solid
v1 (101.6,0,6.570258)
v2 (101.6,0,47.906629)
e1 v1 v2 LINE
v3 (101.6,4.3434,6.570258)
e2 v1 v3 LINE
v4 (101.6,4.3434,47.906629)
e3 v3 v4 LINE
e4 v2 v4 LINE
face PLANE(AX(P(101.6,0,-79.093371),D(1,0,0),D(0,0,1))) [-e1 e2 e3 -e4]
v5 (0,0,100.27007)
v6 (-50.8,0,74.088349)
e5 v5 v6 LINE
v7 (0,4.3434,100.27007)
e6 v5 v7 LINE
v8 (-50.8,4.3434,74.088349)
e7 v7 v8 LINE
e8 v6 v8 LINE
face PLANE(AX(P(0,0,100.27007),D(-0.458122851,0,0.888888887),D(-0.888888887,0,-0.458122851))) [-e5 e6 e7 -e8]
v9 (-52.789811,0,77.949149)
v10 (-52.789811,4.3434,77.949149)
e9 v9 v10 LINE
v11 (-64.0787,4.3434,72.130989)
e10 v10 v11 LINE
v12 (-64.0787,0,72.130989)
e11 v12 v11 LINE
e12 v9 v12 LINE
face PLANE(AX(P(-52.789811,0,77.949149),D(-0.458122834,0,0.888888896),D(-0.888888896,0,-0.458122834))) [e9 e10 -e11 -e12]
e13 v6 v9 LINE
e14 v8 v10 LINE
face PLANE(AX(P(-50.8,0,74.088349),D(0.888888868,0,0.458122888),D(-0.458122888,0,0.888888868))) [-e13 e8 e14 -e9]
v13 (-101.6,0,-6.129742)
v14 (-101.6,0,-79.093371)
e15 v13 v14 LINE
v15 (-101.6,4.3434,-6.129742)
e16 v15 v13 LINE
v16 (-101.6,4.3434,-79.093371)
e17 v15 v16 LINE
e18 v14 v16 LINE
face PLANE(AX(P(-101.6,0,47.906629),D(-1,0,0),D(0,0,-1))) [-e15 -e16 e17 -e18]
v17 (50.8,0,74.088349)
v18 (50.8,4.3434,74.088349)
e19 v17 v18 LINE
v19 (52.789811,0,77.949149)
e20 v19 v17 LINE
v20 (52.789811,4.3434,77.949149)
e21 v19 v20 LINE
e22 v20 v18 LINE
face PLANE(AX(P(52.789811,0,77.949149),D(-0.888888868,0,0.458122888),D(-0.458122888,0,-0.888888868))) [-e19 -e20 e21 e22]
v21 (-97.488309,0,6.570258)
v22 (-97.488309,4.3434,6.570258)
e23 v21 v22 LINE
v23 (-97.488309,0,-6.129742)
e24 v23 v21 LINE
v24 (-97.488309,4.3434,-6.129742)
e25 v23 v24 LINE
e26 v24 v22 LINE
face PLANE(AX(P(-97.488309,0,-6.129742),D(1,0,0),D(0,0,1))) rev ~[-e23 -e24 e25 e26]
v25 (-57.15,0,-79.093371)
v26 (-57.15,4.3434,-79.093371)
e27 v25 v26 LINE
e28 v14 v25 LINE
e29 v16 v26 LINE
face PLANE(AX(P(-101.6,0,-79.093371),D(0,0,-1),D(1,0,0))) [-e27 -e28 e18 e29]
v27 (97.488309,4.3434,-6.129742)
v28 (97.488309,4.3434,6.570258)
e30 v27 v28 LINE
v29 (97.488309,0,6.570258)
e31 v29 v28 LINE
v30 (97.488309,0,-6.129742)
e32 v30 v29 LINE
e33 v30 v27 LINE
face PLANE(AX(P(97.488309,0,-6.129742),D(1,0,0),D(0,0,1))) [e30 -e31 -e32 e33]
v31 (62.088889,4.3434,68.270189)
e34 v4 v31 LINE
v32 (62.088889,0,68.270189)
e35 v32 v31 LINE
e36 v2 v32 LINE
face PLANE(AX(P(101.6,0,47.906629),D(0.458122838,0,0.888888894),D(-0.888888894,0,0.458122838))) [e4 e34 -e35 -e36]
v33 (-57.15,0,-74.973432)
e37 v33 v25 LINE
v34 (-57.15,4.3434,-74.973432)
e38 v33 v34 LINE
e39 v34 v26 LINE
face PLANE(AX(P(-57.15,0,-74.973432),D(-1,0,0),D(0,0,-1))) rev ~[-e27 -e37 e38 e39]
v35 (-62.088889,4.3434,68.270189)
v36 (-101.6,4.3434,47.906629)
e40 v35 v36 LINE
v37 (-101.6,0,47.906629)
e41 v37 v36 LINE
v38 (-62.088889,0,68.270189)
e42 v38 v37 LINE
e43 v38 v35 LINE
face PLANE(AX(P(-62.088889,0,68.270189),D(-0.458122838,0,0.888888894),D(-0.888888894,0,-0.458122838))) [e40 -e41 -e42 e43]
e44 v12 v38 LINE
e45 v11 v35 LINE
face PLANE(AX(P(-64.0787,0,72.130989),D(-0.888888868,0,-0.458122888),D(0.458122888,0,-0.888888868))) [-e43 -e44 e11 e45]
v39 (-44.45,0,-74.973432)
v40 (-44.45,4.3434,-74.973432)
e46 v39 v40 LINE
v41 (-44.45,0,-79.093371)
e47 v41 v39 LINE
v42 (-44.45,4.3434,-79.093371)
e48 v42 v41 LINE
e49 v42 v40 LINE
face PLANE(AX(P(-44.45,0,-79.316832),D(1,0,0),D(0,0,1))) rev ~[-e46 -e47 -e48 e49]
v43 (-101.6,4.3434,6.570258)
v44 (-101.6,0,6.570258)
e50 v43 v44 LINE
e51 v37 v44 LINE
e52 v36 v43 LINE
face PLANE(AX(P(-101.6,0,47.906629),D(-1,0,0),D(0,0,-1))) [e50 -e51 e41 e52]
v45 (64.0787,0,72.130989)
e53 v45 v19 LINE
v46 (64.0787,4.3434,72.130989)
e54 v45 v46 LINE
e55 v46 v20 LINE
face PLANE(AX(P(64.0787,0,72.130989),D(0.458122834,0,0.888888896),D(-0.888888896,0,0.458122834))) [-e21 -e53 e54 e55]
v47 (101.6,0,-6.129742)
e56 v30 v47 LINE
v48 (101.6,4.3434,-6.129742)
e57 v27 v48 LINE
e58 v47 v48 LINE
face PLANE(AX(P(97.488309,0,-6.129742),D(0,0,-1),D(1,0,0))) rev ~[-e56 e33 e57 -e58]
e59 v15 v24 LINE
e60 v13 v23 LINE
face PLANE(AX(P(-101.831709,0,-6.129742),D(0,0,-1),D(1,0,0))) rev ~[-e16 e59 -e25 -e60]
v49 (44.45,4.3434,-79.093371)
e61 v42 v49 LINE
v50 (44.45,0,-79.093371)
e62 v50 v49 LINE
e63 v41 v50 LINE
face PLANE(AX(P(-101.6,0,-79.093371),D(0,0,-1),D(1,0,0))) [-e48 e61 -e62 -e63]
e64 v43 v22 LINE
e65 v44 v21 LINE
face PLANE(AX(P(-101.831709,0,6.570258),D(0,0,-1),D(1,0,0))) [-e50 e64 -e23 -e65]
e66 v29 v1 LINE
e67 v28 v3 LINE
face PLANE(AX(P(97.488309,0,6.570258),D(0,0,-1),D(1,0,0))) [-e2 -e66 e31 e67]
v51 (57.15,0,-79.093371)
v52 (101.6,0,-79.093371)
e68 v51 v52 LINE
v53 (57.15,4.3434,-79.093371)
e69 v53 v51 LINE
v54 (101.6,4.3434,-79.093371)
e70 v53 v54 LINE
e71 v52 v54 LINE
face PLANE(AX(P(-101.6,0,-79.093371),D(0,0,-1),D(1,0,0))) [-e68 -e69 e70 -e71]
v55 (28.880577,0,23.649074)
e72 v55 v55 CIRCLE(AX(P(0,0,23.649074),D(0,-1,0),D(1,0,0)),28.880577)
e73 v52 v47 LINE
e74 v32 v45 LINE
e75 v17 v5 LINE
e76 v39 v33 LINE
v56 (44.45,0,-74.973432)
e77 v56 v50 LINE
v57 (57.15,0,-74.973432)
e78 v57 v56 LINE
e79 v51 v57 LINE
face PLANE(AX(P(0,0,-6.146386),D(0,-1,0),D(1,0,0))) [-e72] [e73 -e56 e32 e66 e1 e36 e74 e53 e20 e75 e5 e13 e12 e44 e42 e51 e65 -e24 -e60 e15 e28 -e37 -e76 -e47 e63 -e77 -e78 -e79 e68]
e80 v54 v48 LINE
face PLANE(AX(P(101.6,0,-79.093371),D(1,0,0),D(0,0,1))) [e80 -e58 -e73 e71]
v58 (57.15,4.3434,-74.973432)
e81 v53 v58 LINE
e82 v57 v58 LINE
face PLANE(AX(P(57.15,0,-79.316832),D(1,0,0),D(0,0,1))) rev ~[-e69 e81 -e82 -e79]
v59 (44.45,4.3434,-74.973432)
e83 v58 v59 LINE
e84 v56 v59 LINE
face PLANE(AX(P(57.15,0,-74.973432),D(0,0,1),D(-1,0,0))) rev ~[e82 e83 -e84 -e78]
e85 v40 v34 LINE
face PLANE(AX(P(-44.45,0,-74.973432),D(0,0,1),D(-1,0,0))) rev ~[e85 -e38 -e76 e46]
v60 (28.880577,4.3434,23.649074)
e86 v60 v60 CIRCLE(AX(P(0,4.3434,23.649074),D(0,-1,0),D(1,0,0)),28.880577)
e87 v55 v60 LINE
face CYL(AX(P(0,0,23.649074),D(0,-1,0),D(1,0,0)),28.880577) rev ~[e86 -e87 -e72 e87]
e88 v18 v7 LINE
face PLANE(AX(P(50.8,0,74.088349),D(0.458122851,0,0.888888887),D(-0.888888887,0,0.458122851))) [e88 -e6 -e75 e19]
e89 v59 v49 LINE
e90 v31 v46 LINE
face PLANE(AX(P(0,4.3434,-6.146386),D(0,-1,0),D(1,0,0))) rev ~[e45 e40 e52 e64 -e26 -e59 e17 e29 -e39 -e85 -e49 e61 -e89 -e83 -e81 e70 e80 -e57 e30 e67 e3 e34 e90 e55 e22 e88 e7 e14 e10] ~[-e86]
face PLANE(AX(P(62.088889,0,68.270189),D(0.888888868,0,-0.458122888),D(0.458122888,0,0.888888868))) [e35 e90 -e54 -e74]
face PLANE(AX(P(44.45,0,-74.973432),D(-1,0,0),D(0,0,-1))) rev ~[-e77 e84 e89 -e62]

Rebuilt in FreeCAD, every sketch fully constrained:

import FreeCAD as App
import Part
import Sketcher
Q = App.Units.Quantity


def add_polygon(sketch, points):
    """Adds a closed chain of lines whose ends are joined by coincident constraints."""
    first, n = sketch.GeometryCount, len(points)
    for a, b in zip(points, points[1:] + points[:1]):
        sketch.addGeometry(Part.LineSegment(App.Vector(*a, 0), App.Vector(*b, 0)), False)
    for i in range(n):
        sketch.addConstraint(Sketcher.Constraint("Coincident", first + i, 2, first + (i + 1) % n, 1))

doc = App.newDocument("Part")
body = doc.addObject("PartDesign::Body", "Body")

sketch1 = body.newObject("Sketcher::SketchObject", "Sketch")
sketch1.AttachmentSupport = (doc.getObject("XZ_Plane"), [""])
sketch1.MapMode = "FlatFace"
add_polygon(sketch1, [(50.8, 74.1), (0, 100.3), (-50.8, 74.1), (-52.8, 77.9), (-64.1, 72.1), (-62.1, 68.3), (-101.6, 47.9), (-101.6, -79.1), (101.6, -79.1), (101.6, 47.9), (62.1, 68.3), (64.1, 72.1), (52.8, 77.9)])
sketch1.addConstraint(Sketcher.Constraint("Vertical", 6))
sketch1.addConstraint(Sketcher.Constraint("Horizontal", 7))
sketch1.addConstraint(Sketcher.Constraint("Vertical", 8))
sketch1.addConstraint(Sketcher.Constraint("Symmetric", 5, 2, 8, 2, -2))
sketch1.addConstraint(Sketcher.Constraint("Symmetric", 4, 2, 9, 2, -2))
sketch1.addConstraint(Sketcher.Constraint("Symmetric", 3, 2, 10, 2, -2))
sketch1.addConstraint(Sketcher.Constraint("Symmetric", 2, 2, 11, 2, -2))
sketch1.addConstraint(Sketcher.Constraint("Symmetric", 1, 2, 12, 2, -2))
sketch1.addConstraint(Sketcher.Constraint("PointOnObject", 0, 2, -2))
sketch1.addConstraint(Sketcher.Constraint("Perpendicular", 1, 2))
sketch1.addConstraint(Sketcher.Constraint("Perpendicular", 2, 3))
sketch1.addConstraint(Sketcher.Constraint("Perpendicular", 3, 4))
sketch1.addConstraint(Sketcher.Constraint("Perpendicular", 4, 5))
sketch1.addConstraint(Sketcher.Constraint("Equal", 2, 4))
sketch1.addConstraint(Sketcher.Constraint("DistanceX", 7, 1, 7, 2, Q("8 in")))
sketch1.addConstraint(Sketcher.Constraint("DistanceY", 6, 2, 6, 1, Q("5 in")))
sketch1.addConstraint(Sketcher.Constraint("DistanceX", 1, 2, -1, 1, Q("2 in")))
sketch1.addConstraint(Sketcher.Constraint("Distance", 3, Q("0.5 in")))
sketch1.addConstraint(Sketcher.Constraint("Distance", 0, Q("2.25 in")))
sketch1.addConstraint(Sketcher.Constraint("Distance", 2, Q("0.171 in")))
sketch1.addConstraint(Sketcher.Constraint("DistanceY", -1, 1, 0, 2, 100.27007))
pad1 = body.newObject("PartDesign::Pad", "Pad")
pad1.Profile = sketch1
pad1.Length = Q("0.171 in")
pad1.Reversed = True

sketch2 = body.newObject("Sketcher::SketchObject", "Sketch001")
sketch2.AttachmentSupport = (doc.getObject("XZ_Plane"), [""])
sketch2.MapMode = "FlatFace"
add_polygon(sketch2, [(-101.8, 6.6), (-101.8, -6.1), (-97.5, -6.1), (-97.5, 6.6)])
add_polygon(sketch2, [(97.5, 6.6), (97.5, -6.1), (101.8, -6.1), (101.8, 6.6)])
sketch2.addConstraint(Sketcher.Constraint("Vertical", 0))
sketch2.addConstraint(Sketcher.Constraint("Horizontal", 1))
sketch2.addConstraint(Sketcher.Constraint("Vertical", 2))
sketch2.addConstraint(Sketcher.Constraint("Horizontal", 3))
sketch2.addConstraint(Sketcher.Constraint("Vertical", 4))
sketch2.addConstraint(Sketcher.Constraint("Horizontal", 5))
sketch2.addConstraint(Sketcher.Constraint("Vertical", 6))
sketch2.addConstraint(Sketcher.Constraint("Horizontal", 7))
sketch2.addConstraint(Sketcher.Constraint("Symmetric", 1, 2, 4, 2, -2))
sketch2.addConstraint(Sketcher.Constraint("Symmetric", 3, 2, 6, 2, -2))
sketch2.addConstraint(Sketcher.Constraint("DistanceY", 0, 2, 0, 1, Q("0.5 in")))
sketch2.addConstraint(Sketcher.Constraint("DistanceX", 1, 1, 1, 2, Q("0.171 in")))
sketch2.addConstraint(Sketcher.Constraint("DistanceX", 0, 2, -1, 1, 101.831709))
sketch2.addConstraint(Sketcher.Constraint("DistanceY", 0, 2, -1, 1, 6.129742))
pocket1 = body.newObject("PartDesign::Pocket", "Pocket")
pocket1.Profile = sketch2
pocket1.Type = "ThroughAll"

sketch3 = body.newObject("Sketcher::SketchObject", "Sketch002")
sketch3.AttachmentSupport = (doc.getObject("XZ_Plane"), [""])
sketch3.MapMode = "FlatFace"
sketch3.addGeometry(Part.Circle(App.Vector(0, 24, 0), App.Vector(0, 0, 1), 29), False)
sketch3.addConstraint(Sketcher.Constraint("PointOnObject", 0, 3, -2))
sketch3.addConstraint(Sketcher.Constraint("Diameter", 0, 57.761154))
sketch3.addConstraint(Sketcher.Constraint("DistanceY", -1, 1, 0, 3, 23.649074))
pocket2 = body.newObject("PartDesign::Pocket", "Pocket001")
pocket2.Profile = sketch3
pocket2.Type = "ThroughAll"

sketch4 = body.newObject("Sketcher::SketchObject", "Sketch003")
sketch4.AttachmentSupport = (doc.getObject("XZ_Plane"), [""])
sketch4.MapMode = "FlatFace"
add_polygon(sketch4, [(-57.1, -79.3), (-44.5, -79.3), (-44.5, -75), (-57.1, -75)])
add_polygon(sketch4, [(57.1, -79.3), (57.1, -75), (44.5, -75), (44.5, -79.3)])
sketch4.addConstraint(Sketcher.Constraint("Horizontal", 0))
sketch4.addConstraint(Sketcher.Constraint("Vertical", 1))
sketch4.addConstraint(Sketcher.Constraint("Horizontal", 2))
sketch4.addConstraint(Sketcher.Constraint("Vertical", 3))
sketch4.addConstraint(Sketcher.Constraint("Vertical", 4))
sketch4.addConstraint(Sketcher.Constraint("Horizontal", 5))
sketch4.addConstraint(Sketcher.Constraint("Vertical", 6))
sketch4.addConstraint(Sketcher.Constraint("Horizontal", 7))
sketch4.addConstraint(Sketcher.Constraint("Symmetric", 2, 2, 4, 2, -2))
sketch4.addConstraint(Sketcher.Constraint("Symmetric", 0, 2, 6, 2, -2))
sketch4.addConstraint(Sketcher.Constraint("DistanceX", 0, 1, 0, 2, Q("0.5 in")))
sketch4.addConstraint(Sketcher.Constraint("DistanceX", 1, 2, 4, 2, Q("4 in")))
sketch4.addConstraint(Sketcher.Constraint("DistanceY", 1, 1, 1, 2, Q("0.171 in")))
sketch4.addConstraint(Sketcher.Constraint("DistanceY", 0, 2, -1, 1, 79.316832))
pocket3 = body.newObject("PartDesign::Pocket", "Pocket002")
pocket3.Profile = sketch4
pocket3.Type = "ThroughAll"

doc.recompute()
